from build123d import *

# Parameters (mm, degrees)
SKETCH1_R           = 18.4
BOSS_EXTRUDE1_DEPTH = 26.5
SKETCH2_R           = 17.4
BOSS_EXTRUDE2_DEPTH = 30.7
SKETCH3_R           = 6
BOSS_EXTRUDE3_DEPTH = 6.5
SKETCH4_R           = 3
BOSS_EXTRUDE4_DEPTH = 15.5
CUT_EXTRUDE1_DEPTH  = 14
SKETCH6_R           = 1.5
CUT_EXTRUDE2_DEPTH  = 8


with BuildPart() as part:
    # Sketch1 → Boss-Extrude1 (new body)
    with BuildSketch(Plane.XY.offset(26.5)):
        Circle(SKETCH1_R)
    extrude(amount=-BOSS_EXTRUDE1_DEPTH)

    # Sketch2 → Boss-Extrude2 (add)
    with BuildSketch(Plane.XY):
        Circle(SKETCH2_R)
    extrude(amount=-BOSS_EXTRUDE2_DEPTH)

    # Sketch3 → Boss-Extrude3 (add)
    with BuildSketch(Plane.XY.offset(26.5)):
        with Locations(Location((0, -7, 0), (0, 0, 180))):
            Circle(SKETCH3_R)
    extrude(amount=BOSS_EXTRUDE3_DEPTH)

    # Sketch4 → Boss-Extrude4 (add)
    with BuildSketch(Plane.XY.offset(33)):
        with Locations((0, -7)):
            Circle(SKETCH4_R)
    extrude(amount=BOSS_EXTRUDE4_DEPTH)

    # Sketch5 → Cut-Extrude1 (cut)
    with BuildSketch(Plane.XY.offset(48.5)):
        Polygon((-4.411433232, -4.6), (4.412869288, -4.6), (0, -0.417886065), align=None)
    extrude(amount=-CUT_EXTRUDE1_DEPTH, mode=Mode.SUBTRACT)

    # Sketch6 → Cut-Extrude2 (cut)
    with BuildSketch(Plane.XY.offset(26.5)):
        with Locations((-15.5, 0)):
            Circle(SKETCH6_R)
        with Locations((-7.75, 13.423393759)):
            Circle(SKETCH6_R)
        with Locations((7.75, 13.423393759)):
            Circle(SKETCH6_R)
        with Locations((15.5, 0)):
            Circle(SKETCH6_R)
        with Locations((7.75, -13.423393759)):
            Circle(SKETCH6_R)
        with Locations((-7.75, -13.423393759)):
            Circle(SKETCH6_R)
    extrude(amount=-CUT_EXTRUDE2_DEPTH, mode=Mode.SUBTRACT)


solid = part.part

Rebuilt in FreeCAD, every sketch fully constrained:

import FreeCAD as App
import Part
import Sketcher
from FreeCAD import Vector

doc = App.newDocument("Part")
params = doc.addObject("Spreadsheet::Sheet", "Params")
for row, (alias, value) in enumerate([
    ("sketch1_diameter", "36.8 mm"),
    ("pad1_length", "26.5 mm"),
    ("sketch2_diameter", "34.8 mm"),
    ("pad2_length", "30.7 mm"),
    ("sketch3_diameter", "12 mm"),
    ("pad3_length", "6.5 mm"),
    ("sketch4_diameter", "6 mm"),
    ("pad4_length", "15.5 mm"),
    ("pocket1_length", "14 mm"),
    ("sketch6_diameter", "3 mm"),
    ("pocket2_length", "8 mm"),
], start=1):
    params.set(f"A{row}", alias)
    params.set(f"B{row}", "=" + value)
    params.setAlias(f"B{row}", alias)

body = doc.addObject("PartDesign::Body", "Body")

sketch1 = doc.addObject("Sketcher::SketchObject", "Sketch")
body.addObject(sketch1)
sketch1.AttachmentSupport = (doc.XY_Plane, [""])
sketch1.MapMode = "FlatFace"
sketch1.AttachmentOffset = App.Placement(Vector(0, 0, 26.5), App.Rotation())
sketch1.addGeometry(Part.Circle(Vector(0, 0, 0), Vector(0, 0, 1), 18), False)
sketch1.addConstraint(Sketcher.Constraint("Coincident", 0, 3, -1, 1))
sketch1.addConstraint(Sketcher.Constraint("Diameter", 0, 36.8))
sketch1.setExpression("Constraints[1]", "Params.sketch1_diameter")
pad1 = doc.addObject("PartDesign::Pad", "Pad")
body.addObject(pad1)
pad1.Profile = sketch1
pad1.setExpression("Length", "Params.pad1_length")
pad1.Reversed = True

sketch2 = doc.addObject("Sketcher::SketchObject", "Sketch001")
body.addObject(sketch2)
sketch2.AttachmentSupport = (doc.XY_Plane, [""])
sketch2.MapMode = "FlatFace"
sketch2.addGeometry(Part.Circle(Vector(0, 0, 0), Vector(0, 0, 1), 17), False)
sketch2.addConstraint(Sketcher.Constraint("Coincident", 0, 3, -1, 1))
sketch2.addConstraint(Sketcher.Constraint("Diameter", 0, 34.8))
sketch2.setExpression("Constraints[1]", "Params.sketch2_diameter")
pad2 = doc.addObject("PartDesign::Pad", "Pad001")
body.addObject(pad2)
pad2.Profile = sketch2
pad2.setExpression("Length", "Params.pad2_length")
pad2.Reversed = True

sketch3 = doc.addObject("Sketcher::SketchObject", "Sketch002")
body.addObject(sketch3)
sketch3.AttachmentSupport = (doc.XY_Plane, [""])
sketch3.MapMode = "FlatFace"
sketch3.AttachmentOffset = App.Placement(Vector(0, 0, 26.5), App.Rotation())
sketch3.addGeometry(Part.Circle(Vector(0, -7, 0), Vector(0, 0, 1), 6), False)
sketch3.addConstraint(Sketcher.Constraint("PointOnObject", 0, 3, -2))
sketch3.addConstraint(Sketcher.Constraint("Diameter", 0, 12.0))
sketch3.addConstraint(Sketcher.Constraint("DistanceY", 0, 3, -1, 1, 7.0))
sketch3.setExpression("Constraints[1]", "Params.sketch3_diameter")
pad3 = doc.addObject("PartDesign::Pad", "Pad002")
body.addObject(pad3)
pad3.Profile = sketch3
pad3.setExpression("Length", "Params.pad3_length")

sketch4 = doc.addObject("Sketcher::SketchObject", "Sketch003")
body.addObject(sketch4)
sketch4.AttachmentSupport = (doc.XY_Plane, [""])
sketch4.MapMode = "FlatFace"
sketch4.AttachmentOffset = App.Placement(Vector(0, 0, 33), App.Rotation())
sketch4.addGeometry(Part.Circle(Vector(0, -7, 0), Vector(0, 0, 1), 3), False)
sketch4.addConstraint(Sketcher.Constraint("PointOnObject", 0, 3, -2))
sketch4.addConstraint(Sketcher.Constraint("Diameter", 0, 6.0))
sketch4.addConstraint(Sketcher.Constraint("DistanceY", 0, 3, -1, 1, 7.0))
sketch4.setExpression("Constraints[1]", "Params.sketch4_diameter")
pad4 = doc.addObject("PartDesign::Pad", "Pad003")
body.addObject(pad4)
pad4.Profile = sketch4
pad4.setExpression("Length", "Params.pad4_length")

sketch5 = doc.addObject("Sketcher::SketchObject", "Sketch004")
body.addObject(sketch5)
sketch5.AttachmentSupport = (doc.XY_Plane, [""])
sketch5.MapMode = "FlatFace"
sketch5.AttachmentOffset = App.Placement(Vector(0, 0, 48.5), App.Rotation())
sketch5.addGeometry(Part.LineSegment(Vector(-4, -5, 0), Vector(4, -5, 0)), False)
sketch5.addGeometry(Part.LineSegment(Vector(4, -5, 0), Vector(0, 0, 0)), False)
sketch5.addGeometry(Part.LineSegment(Vector(0, 0, 0), Vector(-4, -5, 0)), False)
sketch5.addConstraint(Sketcher.Constraint("Coincident", 0, 2, 1, 1))
sketch5.addConstraint(Sketcher.Constraint("Coincident", 1, 2, 2, 1))
sketch5.addConstraint(Sketcher.Constraint("Coincident", 2, 2, 0, 1))
sketch5.addConstraint(Sketcher.Constraint("Horizontal", 0))
sketch5.addConstraint(Sketcher.Constraint("PointOnObject", 1, 2, -2))
sketch5.addConstraint(Sketcher.Constraint("DistanceY", 0, 2, -1, 1, 4.6))
sketch5.addConstraint(Sketcher.Constraint("Distance", 1, 6.079761))
sketch5.addConstraint(Sketcher.Constraint("Distance", 2, 6.078719))
sketch5.addConstraint(Sketcher.Constraint("DistanceX", 0, 1, 0, 2, 8.824303))
pocket1 = doc.addObject("PartDesign::Pocket", "Pocket")
body.addObject(pocket1)
pocket1.Profile = sketch5
pocket1.setExpression("Length", "Params.pocket1_length")

sketch6 = doc.addObject("Sketcher::SketchObject", "Sketch005")
body.addObject(sketch6)
sketch6.AttachmentSupport = (doc.XY_Plane, [""])
sketch6.MapMode = "FlatFace"
sketch6.AttachmentOffset = App.Placement(Vector(0, 0, 26.5), App.Rotation())
sketch6.addGeometry(Part.Circle(Vector(-15.5, 0, 0), Vector(0, 0, 1), 1.5), False)
sketch6.addGeometry(Part.Circle(Vector(-7.8, 13.4, 0), Vector(0, 0, 1), 1.5), False)
sketch6.addGeometry(Part.Circle(Vector(7.8, 13.4, 0), Vector(0, 0, 1), 1.5), False)
sketch6.addGeometry(Part.Circle(Vector(15.5, 0, 0), Vector(0, 0, 1), 1.5), False)
sketch6.addGeometry(Part.Circle(Vector(7.8, -13.4, 0), Vector(0, 0, 1), 1.5), False)
sketch6.addGeometry(Part.Circle(Vector(-7.8, -13.4, 0), Vector(0, 0, 1), 1.5), False)
sketch6.addConstraint(Sketcher.Constraint("Equal", 0, 1))
sketch6.addConstraint(Sketcher.Constraint("Equal", 1, 2))
sketch6.addConstraint(Sketcher.Constraint("Equal", 2, 3))
sketch6.addConstraint(Sketcher.Constraint("Equal", 3, 4))
sketch6.addConstraint(Sketcher.Constraint("Equal", 4, 5))
sketch6.addConstraint(Sketcher.Constraint("Symmetric", 0, 3, 3, 3, -1, 1))
sketch6.addConstraint(Sketcher.Constraint("Symmetric", 1, 3, 4, 3, -1, 1))
sketch6.addConstraint(Sketcher.Constraint("Symmetric", 2, 3, 5, 3, -1, 1))
sketch6.addConstraint(Sketcher.Constraint("Symmetric", 1, 3, 2, 3, -2))
sketch6.addConstraint(Sketcher.Constraint("PointOnObject", 0, 3, -1))
sketch6.addConstraint(Sketcher.Constraint("Diameter", 0, 3.0))
sketch6.addConstraint(Sketcher.Constraint("DistanceX", 0, 3, 3, 3, 31.0))
sketch6.addConstraint(Sketcher.Constraint("DistanceX", 1, 3, 2, 3, 15.5))
sketch6.addConstraint(Sketcher.Constraint("DistanceY", -1, 1, 1, 3, 13.423394))
sketch6.setExpression("Constraints[10]", "Params.sketch6_diameter")
pocket2 = doc.addObject("PartDesign::Pocket", "Pocket001")
body.addObject(pocket2)
pocket2.Profile = sketch6
pocket2.setExpression("Length", "Params.pocket2_length")

doc.recompute()
